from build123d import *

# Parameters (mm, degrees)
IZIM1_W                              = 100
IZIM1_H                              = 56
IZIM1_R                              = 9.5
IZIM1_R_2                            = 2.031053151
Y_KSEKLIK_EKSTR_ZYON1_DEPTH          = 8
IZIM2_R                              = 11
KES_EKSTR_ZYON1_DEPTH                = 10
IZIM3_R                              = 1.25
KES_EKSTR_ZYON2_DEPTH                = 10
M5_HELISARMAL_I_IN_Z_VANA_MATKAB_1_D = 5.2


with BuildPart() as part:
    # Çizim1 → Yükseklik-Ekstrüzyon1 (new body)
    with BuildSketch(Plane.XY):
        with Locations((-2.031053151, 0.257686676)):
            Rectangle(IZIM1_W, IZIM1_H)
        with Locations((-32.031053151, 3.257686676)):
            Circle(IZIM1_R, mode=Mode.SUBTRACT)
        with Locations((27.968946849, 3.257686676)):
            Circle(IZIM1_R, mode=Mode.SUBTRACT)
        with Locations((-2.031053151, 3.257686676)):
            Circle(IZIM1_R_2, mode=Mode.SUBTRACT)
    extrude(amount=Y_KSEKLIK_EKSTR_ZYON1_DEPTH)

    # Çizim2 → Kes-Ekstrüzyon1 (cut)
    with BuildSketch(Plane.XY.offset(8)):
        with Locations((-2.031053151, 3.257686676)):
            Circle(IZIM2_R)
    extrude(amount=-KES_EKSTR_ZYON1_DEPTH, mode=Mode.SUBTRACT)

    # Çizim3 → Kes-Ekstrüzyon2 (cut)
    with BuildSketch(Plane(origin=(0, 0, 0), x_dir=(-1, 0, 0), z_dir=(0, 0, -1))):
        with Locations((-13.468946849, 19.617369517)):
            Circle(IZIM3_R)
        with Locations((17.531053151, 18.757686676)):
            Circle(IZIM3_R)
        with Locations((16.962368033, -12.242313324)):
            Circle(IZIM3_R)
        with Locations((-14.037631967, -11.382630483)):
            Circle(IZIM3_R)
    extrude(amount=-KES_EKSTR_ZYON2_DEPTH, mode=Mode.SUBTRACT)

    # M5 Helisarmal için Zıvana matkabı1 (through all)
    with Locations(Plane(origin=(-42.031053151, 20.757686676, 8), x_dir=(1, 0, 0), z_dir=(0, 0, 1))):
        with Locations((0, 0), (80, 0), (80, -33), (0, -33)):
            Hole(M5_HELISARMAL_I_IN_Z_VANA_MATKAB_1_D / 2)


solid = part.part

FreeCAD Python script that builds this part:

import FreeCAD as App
import Part
import Sketcher
from FreeCAD import Vector
Q = App.Units.Quantity


def add_polygon(sketch, points):
    """Adds a closed chain of lines whose ends are joined by coincident constraints."""
    first, n = sketch.GeometryCount, len(points)
    for a, b in zip(points, points[1:] + points[:1]):
        sketch.addGeometry(Part.LineSegment(App.Vector(*a, 0), App.Vector(*b, 0)), False)
    for i in range(n):
        sketch.addConstraint(Sketcher.Constraint("Coincident", first + i, 2, first + (i + 1) % n, 1))

doc = App.newDocument("Part")
body = doc.addObject("PartDesign::Body", "Body")

sketch1 = body.newObject("Sketcher::SketchObject", "Sketch")
sketch1.AttachmentSupport = (doc.getObject("XY_Plane"), [""])
sketch1.MapMode = "FlatFace"
add_polygon(sketch1, [(-52, 28.3), (-52, -27.7), (48, -27.7), (48, 28.3)])
sketch1.addGeometry(Part.Circle(Vector(-32, 3.3, 0), Vector(0, 0, 1), 9.5), False)
sketch1.addGeometry(Part.Circle(Vector(-2, 3.3, 0), Vector(0, 0, 1), 2), False)
sketch1.addGeometry(Part.Circle(Vector(28, 3.3, 0), Vector(0, 0, 1), 9.5), False)
sketch1.addConstraint(Sketcher.Constraint("Vertical", 0))
sketch1.addConstraint(Sketcher.Constraint("Horizontal", 1))
sketch1.addConstraint(Sketcher.Constraint("Vertical", 2))
sketch1.addConstraint(Sketcher.Constraint("Horizontal", 3))
sketch1.addConstraint(Sketcher.Constraint("Equal", 4, 6))
sketch1.addConstraint(Sketcher.Constraint("Horizontal", 4, 3, 5, 3))
sketch1.addConstraint(Sketcher.Constraint("Horizontal", 5, 3, 6, 3))
sketch1.addConstraint(Sketcher.Constraint("Diameter", 4, Q("19 mm")))
sketch1.addConstraint(Sketcher.Constraint("DistanceX", 1, 1, 1, 2, Q("100 mm")))
sketch1.addConstraint(Sketcher.Constraint("DistanceY", 0, 2, 0, 1, Q("56 mm")))
sketch1.addConstraint(Sketcher.Constraint("DistanceX", 4, 3, 5, 3, Q("30 mm")))
sketch1.addConstraint(Sketcher.Constraint("DistanceX", 5, 3, 6, 3, Q("30 mm")))
sketch1.addConstraint(Sketcher.Constraint("DistanceX", 0, 2, 4, 3, Q("20 mm")))
sketch1.addConstraint(Sketcher.Constraint("DistanceY", 0, 2, 4, 3, Q("31 mm")))
sketch1.addConstraint(Sketcher.Constraint("Diameter", 5, Q("4.062106 mm")))
sketch1.addConstraint(Sketcher.Constraint("DistanceX", 4, 3, -1, 1, Q("32.031053 mm")))
sketch1.addConstraint(Sketcher.Constraint("DistanceY", -1, 1, 4, 3, Q("3.257687 mm")))
pad1 = body.newObject("PartDesign::Pad", "Pad")
pad1.Profile = sketch1
pad1.Length = 8

sketch2 = body.newObject("Sketcher::SketchObject", "Sketch001")
sketch2.AttachmentSupport = (doc.getObject("XY_Plane"), [""])
sketch2.MapMode = "FlatFace"
sketch2.AttachmentOffset = App.Placement(Vector(0, 0, 8), App.Rotation())
sketch2.addGeometry(Part.Circle(Vector(-2, 3, 0), Vector(0, 0, 1), 11), False)
sketch2.addConstraint(Sketcher.Constraint("Diameter", 0, Q("22 mm")))
sketch2.addConstraint(Sketcher.Constraint("DistanceX", 0, 3, -1, 1, Q("2.031053 mm")))
sketch2.addConstraint(Sketcher.Constraint("DistanceY", -1, 1, 0, 3, Q("3.257687 mm")))
pocket1 = body.newObject("PartDesign::Pocket", "Pocket")
pocket1.Profile = sketch2
pocket1.Length = 10

sketch3 = body.newObject("Sketcher::SketchObject", "Sketch002")
sketch3.AttachmentSupport = (doc.getObject("XY_Plane"), [""])
sketch3.MapMode = "FlatFace"
sketch3.addGeometry(Part.Circle(Vector(13.5, 19.6, 0), Vector(0, 0, 1), 1.2), False)
sketch3.addGeometry(Part.Circle(Vector(-17.5, 18.8, 0), Vector(0, 0, 1), 1.2), False)
sketch3.addGeometry(Part.Circle(Vector(-17, -12.2, 0), Vector(0, 0, 1), 1.2), False)
sketch3.addGeometry(Part.Circle(Vector(14, -11.4, 0), Vector(0, 0, 1), 1.2), False)
sketch3.addConstraint(Sketcher.Constraint("Equal", 0, 1))
sketch3.addConstraint(Sketcher.Constraint("Equal", 1, 2))
sketch3.addConstraint(Sketcher.Constraint("Equal", 2, 3))
sketch3.addConstraint(Sketcher.Constraint("Diameter", 0, Q("2.5 mm")))
sketch3.addConstraint(Sketcher.Constraint("DistanceX", 1, 3, 0, 3, Q("31 mm")))
sketch3.addConstraint(Sketcher.Constraint("DistanceY", 2, 3, 1, 3, Q("31 mm")))
sketch3.addConstraint(Sketcher.Constraint("DistanceY", 3, 3, 0, 3, Q("31 mm")))
sketch3.addConstraint(Sketcher.Constraint("DistanceX", 2, 3, 3, 3, Q("31 mm")))
sketch3.addConstraint(Sketcher.Constraint("DistanceY", -1, 1, 0, 3, Q("19.61737 mm")))
sketch3.addConstraint(Sketcher.Constraint("DistanceX", 2, 3, -1, 1, Q("16.962368 mm")))
sketch3.addConstraint(Sketcher.Constraint("DistanceX", -1, 1, 0, 3, Q("13.468947 mm")))
sketch3.addConstraint(Sketcher.Constraint("DistanceY", -1, 1, 1, 3, Q("18.757687 mm")))
pocket2 = body.newObject("PartDesign::Pocket", "Pocket001")
pocket2.Profile = sketch3
pocket2.Length = 10
pocket2.Reversed = True

sketch4 = body.newObject("Sketcher::SketchObject", "Sketch003")
sketch4.AttachmentSupport = (doc.getObject("XY_Plane"), [""])
sketch4.MapMode = "FlatFace"
sketch4.AttachmentOffset = App.Placement(Vector(0, 0, 8), App.Rotation())
sketch4.addGeometry(Part.Circle(Vector(-42, 20.8, 0), Vector(0, 0, 1), 2.6), False)
sketch4.addGeometry(Part.Circle(Vector(38, 20.8, 0), Vector(0, 0, 1), 2.6), False)
sketch4.addGeometry(Part.Circle(Vector(38, -12.2, 0), Vector(0, 0, 1), 2.6), False)
sketch4.addGeometry(Part.Circle(Vector(-42, -12.2, 0), Vector(0, 0, 1), 2.6), False)
sketch4.addConstraint(Sketcher.Constraint("Equal", 0, 1))
sketch4.addConstraint(Sketcher.Constraint("Equal", 1, 2))
sketch4.addConstraint(Sketcher.Constraint("Equal", 2, 3))
sketch4.addConstraint(Sketcher.Constraint("Horizontal", 0, 3, 1, 3))
sketch4.addConstraint(Sketcher.Constraint("Horizontal", 2, 3, 3, 3))
sketch4.addConstraint(Sketcher.Constraint("Vertical", 1, 3, 2, 3))
sketch4.addConstraint(Sketcher.Constraint("Vertical", 0, 3, 3, 3))
sketch4.addConstraint(Sketcher.Constraint("Diameter", 0, Q("5.2 mm")))
sketch4.addConstraint(Sketcher.Constraint("DistanceX", 0, 3, 1, 3, Q("80 mm")))
sketch4.addConstraint(Sketcher.Constraint("DistanceY", 2, 3, 1, 3, Q("33 mm")))
sketch4.addConstraint(Sketcher.Constraint("DistanceX", 0, 3, -1, 1, Q("42.031053 mm")))
sketch4.addConstraint(Sketcher.Constraint("DistanceY", -1, 1, 0, 3, Q("20.757687 mm")))
doc.recompute()
hole = body.newObject("PartDesign::Hole", "Hole")
hole.Profile = sketch4
hole.ThreadType = "None"
hole.Diameter = 5.2
hole.DepthType = "ThroughAll"

doc.recompute()
